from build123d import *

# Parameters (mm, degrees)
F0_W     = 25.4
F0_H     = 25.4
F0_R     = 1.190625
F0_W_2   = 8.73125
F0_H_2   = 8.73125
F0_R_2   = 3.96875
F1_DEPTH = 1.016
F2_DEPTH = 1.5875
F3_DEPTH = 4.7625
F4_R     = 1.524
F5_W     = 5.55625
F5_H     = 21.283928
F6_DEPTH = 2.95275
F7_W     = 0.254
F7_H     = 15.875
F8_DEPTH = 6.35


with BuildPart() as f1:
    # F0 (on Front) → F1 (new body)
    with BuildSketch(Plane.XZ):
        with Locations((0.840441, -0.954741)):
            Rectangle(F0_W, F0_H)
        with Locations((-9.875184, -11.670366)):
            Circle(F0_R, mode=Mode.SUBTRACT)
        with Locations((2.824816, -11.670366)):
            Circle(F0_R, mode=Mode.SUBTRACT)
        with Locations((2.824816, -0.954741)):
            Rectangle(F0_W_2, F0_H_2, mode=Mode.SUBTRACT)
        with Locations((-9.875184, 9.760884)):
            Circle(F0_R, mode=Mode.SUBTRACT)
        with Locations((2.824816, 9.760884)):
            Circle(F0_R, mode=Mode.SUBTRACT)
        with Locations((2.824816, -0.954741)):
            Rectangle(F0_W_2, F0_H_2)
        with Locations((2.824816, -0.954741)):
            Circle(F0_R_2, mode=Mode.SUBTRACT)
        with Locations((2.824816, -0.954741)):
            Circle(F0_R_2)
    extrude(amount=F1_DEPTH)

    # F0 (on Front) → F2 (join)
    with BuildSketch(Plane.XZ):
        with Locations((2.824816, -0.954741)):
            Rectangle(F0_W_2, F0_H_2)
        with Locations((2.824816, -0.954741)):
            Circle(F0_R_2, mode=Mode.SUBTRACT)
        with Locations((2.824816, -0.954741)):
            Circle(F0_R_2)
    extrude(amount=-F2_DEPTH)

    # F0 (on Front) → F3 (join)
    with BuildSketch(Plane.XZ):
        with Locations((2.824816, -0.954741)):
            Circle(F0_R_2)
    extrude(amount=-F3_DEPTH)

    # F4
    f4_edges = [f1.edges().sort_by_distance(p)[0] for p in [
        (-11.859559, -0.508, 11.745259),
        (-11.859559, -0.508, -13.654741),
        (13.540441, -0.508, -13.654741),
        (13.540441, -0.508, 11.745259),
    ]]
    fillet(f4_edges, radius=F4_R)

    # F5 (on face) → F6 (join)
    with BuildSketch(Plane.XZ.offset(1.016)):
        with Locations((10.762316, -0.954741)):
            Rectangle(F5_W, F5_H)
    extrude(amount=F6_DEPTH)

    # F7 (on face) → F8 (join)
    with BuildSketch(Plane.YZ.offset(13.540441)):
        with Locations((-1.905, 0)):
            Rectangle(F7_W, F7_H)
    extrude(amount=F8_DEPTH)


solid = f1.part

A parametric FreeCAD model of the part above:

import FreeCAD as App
import Part
import Sketcher
from FreeCAD import Vector
Q = App.Units.Quantity


def edges_at(feature, points):
    """Names of the edges that pass closest to the given points."""
    edges = feature.Shape.Edges
    near = lambda p: min(range(len(edges)), key=lambda i: edges[i].distToShape(Part.Vertex(*p))[0])
    return sorted({f"Edge{near(p) + 1}" for p in points})


def add_polygon(sketch, points):
    """Adds a closed chain of lines whose ends are joined by coincident constraints."""
    first, n = sketch.GeometryCount, len(points)
    for a, b in zip(points, points[1:] + points[:1]):
        sketch.addGeometry(Part.LineSegment(App.Vector(*a, 0), App.Vector(*b, 0)), False)
    for i in range(n):
        sketch.addConstraint(Sketcher.Constraint("Coincident", first + i, 2, first + (i + 1) % n, 1))

doc = App.newDocument("Part")
body = doc.addObject("PartDesign::Body", "Body")

sketch1 = body.newObject("Sketcher::SketchObject", "Sketch")
sketch1.AttachmentSupport = (doc.getObject("XZ_Plane"), [""])
sketch1.MapMode = "FlatFace"
add_polygon(sketch1, [(-11.9, 11.7), (-11.9, -13.7), (13.5, -13.7), (13.5, 11.7)])
sketch1.addGeometry(Part.Circle(Vector(-9.9, -11.7, 0), Vector(0, 0, 1), 1.2), False)
sketch1.addGeometry(Part.Circle(Vector(2.8, -11.7, 0), Vector(0, 0, 1), 1.2), False)
sketch1.addGeometry(Part.Circle(Vector(-9.9, 9.8, 0), Vector(0, 0, 1), 1.2), False)
sketch1.addGeometry(Part.Circle(Vector(2.8, 9.8, 0), Vector(0, 0, 1), 1.2), False)
sketch1.addConstraint([
    Sketcher.Constraint("Vertical", 0),
    Sketcher.Constraint("Horizontal", 1),
    Sketcher.Constraint("Vertical", 2),
    Sketcher.Constraint("Horizontal", 3),
    Sketcher.Constraint("Equal", 4, 5),
    Sketcher.Constraint("Equal", 5, 6),
    Sketcher.Constraint("Equal", 6, 7),
    Sketcher.Constraint("Horizontal", 4, 3, 5, 3),
    Sketcher.Constraint("Horizontal", 6, 3, 7, 3),
    Sketcher.Constraint("Vertical", 4, 3, 6, 3),
    Sketcher.Constraint("Vertical", 5, 3, 7, 3),
    Sketcher.Constraint("Equal", 3, 0),
    Sketcher.Constraint("DistanceX", 1, 1, 1, 2, Q("1 in")),
    Sketcher.Constraint("Diameter", 4, Q("0.09375 in")),
    Sketcher.Constraint("DistanceX", 4, 3, 5, 3, Q("0.5 in")),
    Sketcher.Constraint("DistanceY", 4, 3, 6, 3, Q("0.84375 in")),
    Sketcher.Constraint("DistanceX", 0, 2, 4, 3, Q("0.078125 in")),
    Sketcher.Constraint("DistanceY", 0, 2, 4, 3, Q("0.078125 in")),
    Sketcher.Constraint("DistanceX", 0, 2, -1, 1, 11.859559),
    Sketcher.Constraint("DistanceY", 0, 2, -1, 1, 13.654741),
])
pad1 = body.newObject("PartDesign::Pad", "Pad")
pad1.Profile = sketch1
pad1.Length = Q("0.04 in")

sketch2 = body.newObject("Sketcher::SketchObject", "Sketch001")
sketch2.AttachmentSupport = (doc.getObject("XZ_Plane"), [""])
sketch2.MapMode = "FlatFace"
add_polygon(sketch2, [(-2, 3), (-2, -5), (7, -5), (7, 3)])
sketch2.addConstraint([
    Sketcher.Constraint("Vertical", 0),
    Sketcher.Constraint("Horizontal", 1),
    Sketcher.Constraint("Vertical", 2),
    Sketcher.Constraint("Horizontal", 3),
    Sketcher.Constraint("Equal", 3, 0),
    Sketcher.Constraint("DistanceX", 1, 1, 1, 2, Q("0.34375 in")),
    Sketcher.Constraint("DistanceX", 0, 2, -1, 1, 1.540809),
    Sketcher.Constraint("DistanceY", 0, 2, -1, 1, 5.320366),
])
pad2 = body.newObject("PartDesign::Pad", "Pad001")
pad2.Profile = sketch2
pad2.Length = Q("0.0625 in")
pad2.Reversed = True

sketch3 = body.newObject("Sketcher::SketchObject", "Sketch002")
sketch3.AttachmentSupport = (doc.getObject("XZ_Plane"), [""])
sketch3.MapMode = "FlatFace"
sketch3.addGeometry(Part.Circle(Vector(2.8, -1, 0), Vector(0, 0, 1), 4), False)
sketch3.addConstraint([
    Sketcher.Constraint("Diameter", 0, Q("0.3125 in")),
    Sketcher.Constraint("DistanceY", 0, 3, -1, 1, 0.954741),
    Sketcher.Constraint("DistanceX", -1, 1, 0, 3, 2.824816),
])
pad3 = body.newObject("PartDesign::Pad", "Pad002")
pad3.Profile = sketch3
pad3.Length = Q("0.1875 in")
pad3.Reversed = True
doc.recompute()

fillet = body.newObject("PartDesign::Fillet", "Fillet")
fillet.Base = (pad3, edges_at(pad3, [
    (-11.86, -0.508, 11.745),
    (-11.86, -0.508, -13.655),
    (13.54, -0.508, -13.655),
    (13.54, -0.508, 11.745),
]))
fillet.Radius = Q("0.06 in")

sketch4 = body.newObject("Sketcher::SketchObject", "Sketch003")
sketch4.AttachmentSupport = (doc.getObject("XZ_Plane"), [""])
sketch4.MapMode = "FlatFace"
sketch4.AttachmentOffset = App.Placement(Vector(0, 0, 0.04 * 25.4), App.Rotation())
add_polygon(sketch4, [(8, 10), (8, -12), (14, -12), (14, 10)])
sketch4.addConstraint([
    Sketcher.Constraint("Vertical", 0),
    Sketcher.Constraint("Horizontal", 1),
    Sketcher.Constraint("Vertical", 2),
    Sketcher.Constraint("Horizontal", 3),
    Sketcher.Constraint("DistanceX", 1, 1, 1, 2, Q("0.21875 in")),
    Sketcher.Constraint("DistanceY", 0, 2, 0, 1, 21.283928),
    Sketcher.Constraint("DistanceX", -1, 1, 0, 2, 7.984191),
    Sketcher.Constraint("DistanceY", 0, 2, -1, 1, 11.596705),
])
pad4 = body.newObject("PartDesign::Pad", "Pad003")
pad4.Profile = sketch4
pad4.Length = 2.95275

sketch5 = body.newObject("Sketcher::SketchObject", "Sketch004")
sketch5.AttachmentSupport = (doc.getObject("YZ_Plane"), [""])
sketch5.MapMode = "FlatFace"
sketch5.AttachmentOffset = App.Placement(Vector(0, 0, 13.540441), App.Rotation())
add_polygon(sketch5, [(-2.03, 7.94), (-2.03, -7.94), (-1.78, -7.94), (-1.78, 7.94)])
sketch5.addConstraint([
    Sketcher.Constraint("Vertical", 0),
    Sketcher.Constraint("Horizontal", 1),
    Sketcher.Constraint("Vertical", 2),
    Sketcher.Constraint("Horizontal", 3),
    Sketcher.Constraint("DistanceX", 1, 1, 1, 2, Q("0.01 in")),
    Sketcher.Constraint("DistanceY", 0, 2, 0, 1, Q("0.625 in")),
    Sketcher.Constraint("DistanceX", 0, 2, -1, 1, Q("0.08 in")),
    Sketcher.Constraint("DistanceY", 0, 2, -1, 1, Q("0.3125 in")),
])
pad5 = body.newObject("PartDesign::Pad", "Pad004")
pad5.Profile = sketch5
pad5.Length = Q("0.25 in")

doc.recompute()
